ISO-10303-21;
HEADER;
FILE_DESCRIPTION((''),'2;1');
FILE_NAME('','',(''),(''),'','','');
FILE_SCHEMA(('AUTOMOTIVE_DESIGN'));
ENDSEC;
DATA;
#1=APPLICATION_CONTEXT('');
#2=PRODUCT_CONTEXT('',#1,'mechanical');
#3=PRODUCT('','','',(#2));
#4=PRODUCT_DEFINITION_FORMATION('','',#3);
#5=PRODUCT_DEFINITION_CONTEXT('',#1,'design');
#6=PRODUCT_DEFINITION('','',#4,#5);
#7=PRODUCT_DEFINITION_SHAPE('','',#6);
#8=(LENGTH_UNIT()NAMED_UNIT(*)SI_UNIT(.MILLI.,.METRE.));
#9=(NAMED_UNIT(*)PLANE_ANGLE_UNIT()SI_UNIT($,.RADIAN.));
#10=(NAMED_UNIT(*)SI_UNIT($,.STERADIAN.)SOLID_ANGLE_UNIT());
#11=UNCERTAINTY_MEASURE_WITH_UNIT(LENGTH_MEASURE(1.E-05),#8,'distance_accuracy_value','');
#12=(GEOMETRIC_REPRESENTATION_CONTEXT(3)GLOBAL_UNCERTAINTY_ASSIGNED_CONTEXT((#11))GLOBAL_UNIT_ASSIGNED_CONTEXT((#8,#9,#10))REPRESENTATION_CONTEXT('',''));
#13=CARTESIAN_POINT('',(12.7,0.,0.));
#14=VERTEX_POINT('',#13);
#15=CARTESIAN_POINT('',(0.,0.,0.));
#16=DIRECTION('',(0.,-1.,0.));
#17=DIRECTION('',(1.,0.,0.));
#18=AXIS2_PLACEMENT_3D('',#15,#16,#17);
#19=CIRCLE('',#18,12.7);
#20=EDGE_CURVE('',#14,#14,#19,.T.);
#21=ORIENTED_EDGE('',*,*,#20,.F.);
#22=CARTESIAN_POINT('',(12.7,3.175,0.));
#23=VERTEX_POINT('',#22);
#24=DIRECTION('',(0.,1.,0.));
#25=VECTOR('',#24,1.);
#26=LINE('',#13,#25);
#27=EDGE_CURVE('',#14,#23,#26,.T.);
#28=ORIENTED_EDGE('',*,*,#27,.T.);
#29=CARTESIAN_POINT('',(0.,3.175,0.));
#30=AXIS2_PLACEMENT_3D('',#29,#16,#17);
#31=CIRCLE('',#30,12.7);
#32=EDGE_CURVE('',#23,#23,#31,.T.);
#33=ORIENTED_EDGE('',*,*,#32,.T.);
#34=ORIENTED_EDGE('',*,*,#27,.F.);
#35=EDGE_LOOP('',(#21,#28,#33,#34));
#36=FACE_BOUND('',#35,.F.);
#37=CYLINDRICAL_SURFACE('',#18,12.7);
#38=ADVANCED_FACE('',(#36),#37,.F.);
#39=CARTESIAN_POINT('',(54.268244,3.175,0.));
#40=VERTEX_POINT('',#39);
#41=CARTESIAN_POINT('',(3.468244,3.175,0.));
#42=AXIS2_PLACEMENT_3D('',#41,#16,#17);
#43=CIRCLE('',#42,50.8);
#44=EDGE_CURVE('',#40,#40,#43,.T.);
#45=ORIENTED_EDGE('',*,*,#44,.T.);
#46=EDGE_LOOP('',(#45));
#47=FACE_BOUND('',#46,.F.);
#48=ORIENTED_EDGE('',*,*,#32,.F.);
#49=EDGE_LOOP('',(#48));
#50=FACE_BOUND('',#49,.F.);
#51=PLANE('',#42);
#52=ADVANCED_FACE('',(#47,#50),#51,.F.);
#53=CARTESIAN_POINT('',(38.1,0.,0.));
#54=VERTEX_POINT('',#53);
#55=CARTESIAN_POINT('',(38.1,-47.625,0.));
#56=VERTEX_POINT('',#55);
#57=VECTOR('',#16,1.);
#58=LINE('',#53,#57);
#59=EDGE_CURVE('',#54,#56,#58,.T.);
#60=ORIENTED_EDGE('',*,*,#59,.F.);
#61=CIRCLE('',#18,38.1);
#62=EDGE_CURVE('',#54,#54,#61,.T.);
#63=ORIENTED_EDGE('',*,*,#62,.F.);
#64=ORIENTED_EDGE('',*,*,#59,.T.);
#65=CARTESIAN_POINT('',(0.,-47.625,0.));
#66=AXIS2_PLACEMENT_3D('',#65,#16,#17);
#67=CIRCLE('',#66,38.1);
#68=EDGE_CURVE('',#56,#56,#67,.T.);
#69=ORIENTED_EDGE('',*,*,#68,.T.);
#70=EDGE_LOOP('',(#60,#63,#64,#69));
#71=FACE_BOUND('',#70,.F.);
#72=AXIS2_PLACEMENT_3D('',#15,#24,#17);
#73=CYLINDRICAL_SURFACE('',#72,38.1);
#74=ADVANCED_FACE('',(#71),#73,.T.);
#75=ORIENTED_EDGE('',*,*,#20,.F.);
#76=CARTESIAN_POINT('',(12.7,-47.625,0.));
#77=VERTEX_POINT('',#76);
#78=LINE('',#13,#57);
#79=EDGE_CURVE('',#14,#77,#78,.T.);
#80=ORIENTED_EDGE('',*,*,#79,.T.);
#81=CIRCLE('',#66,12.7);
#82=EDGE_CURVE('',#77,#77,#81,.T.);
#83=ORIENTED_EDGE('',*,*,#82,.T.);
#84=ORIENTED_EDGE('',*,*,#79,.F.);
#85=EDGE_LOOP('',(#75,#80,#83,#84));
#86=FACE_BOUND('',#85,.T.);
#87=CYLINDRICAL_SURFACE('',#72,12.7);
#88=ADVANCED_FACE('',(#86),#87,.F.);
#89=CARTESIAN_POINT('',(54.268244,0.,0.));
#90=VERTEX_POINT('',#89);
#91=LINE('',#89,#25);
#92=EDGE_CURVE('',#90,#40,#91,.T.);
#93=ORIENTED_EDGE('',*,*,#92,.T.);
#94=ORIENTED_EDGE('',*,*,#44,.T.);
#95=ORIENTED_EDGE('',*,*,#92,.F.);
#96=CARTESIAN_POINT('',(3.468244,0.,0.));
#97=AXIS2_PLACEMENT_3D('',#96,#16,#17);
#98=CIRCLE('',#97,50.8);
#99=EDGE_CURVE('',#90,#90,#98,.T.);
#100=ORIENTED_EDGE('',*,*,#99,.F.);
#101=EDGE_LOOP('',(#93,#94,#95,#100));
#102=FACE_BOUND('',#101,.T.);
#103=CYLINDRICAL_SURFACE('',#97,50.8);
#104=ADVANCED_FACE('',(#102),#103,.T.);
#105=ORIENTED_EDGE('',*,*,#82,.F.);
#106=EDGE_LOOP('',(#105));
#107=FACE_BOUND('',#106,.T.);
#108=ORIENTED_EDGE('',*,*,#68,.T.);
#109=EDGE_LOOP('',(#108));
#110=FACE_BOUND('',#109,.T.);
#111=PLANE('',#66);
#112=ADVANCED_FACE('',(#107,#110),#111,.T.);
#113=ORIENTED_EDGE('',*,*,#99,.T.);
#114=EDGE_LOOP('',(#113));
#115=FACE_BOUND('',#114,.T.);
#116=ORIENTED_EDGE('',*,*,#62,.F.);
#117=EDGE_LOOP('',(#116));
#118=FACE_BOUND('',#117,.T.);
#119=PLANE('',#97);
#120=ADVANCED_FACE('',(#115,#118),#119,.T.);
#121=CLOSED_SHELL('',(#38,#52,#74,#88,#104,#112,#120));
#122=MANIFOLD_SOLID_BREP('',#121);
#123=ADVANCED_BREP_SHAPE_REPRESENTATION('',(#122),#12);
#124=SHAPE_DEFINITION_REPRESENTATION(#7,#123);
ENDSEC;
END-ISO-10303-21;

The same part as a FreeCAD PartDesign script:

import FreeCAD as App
import Part
import Sketcher
Q = App.Units.Quantity

doc = App.newDocument("Part")
body = doc.addObject("PartDesign::Body", "Body")

sketch1 = doc.addObject("Sketcher::SketchObject", "Sketch")
body.addObject(sketch1)
sketch1.AttachmentSupport = (doc.XZ_Plane, [""])
sketch1.MapMode = "FlatFace"
sketch1.addGeometry(Part.Circle(App.Vector(0, 0, 0), App.Vector(0, 0, 1), 38), False)
sketch1.addConstraint([
    Sketcher.Constraint("Coincident", 0, 3, -1, 1),
    Sketcher.Constraint("Diameter", 0, Q("3 in")),
])
pad1 = doc.addObject("PartDesign::Pad", "Pad")
body.addObject(pad1)
pad1.Profile = sketch1
pad1.Length = Q("1.875 in")

sketch2 = doc.addObject("Sketcher::SketchObject", "Sketch001")
body.addObject(sketch2)
sketch2.AttachmentSupport = (doc.XZ_Plane, [""])
sketch2.MapMode = "FlatFace"
sketch2.addGeometry(Part.Circle(App.Vector(3, 0, 0), App.Vector(0, 0, 1), 51), False)
sketch2.addConstraint([
    Sketcher.Constraint("PointOnObject", 0, 3, -1),
    Sketcher.Constraint("Diameter", 0, Q("4 in")),
    Sketcher.Constraint("DistanceX", -1, 1, 0, 3, Q("3.468244 mm")),
])
pad2 = doc.addObject("PartDesign::Pad", "Pad001")
body.addObject(pad2)
pad2.Profile = sketch2
pad2.Length = Q("0.125 in")
pad2.Reversed = True

sketch3 = doc.addObject("Sketcher::SketchObject", "Sketch002")
body.addObject(sketch3)
sketch3.AttachmentSupport = (doc.XZ_Plane, [""])
sketch3.MapMode = "FlatFace"
sketch3.addGeometry(Part.Circle(App.Vector(0, 0, 0), App.Vector(0, 0, 1), 13), False)
sketch3.addConstraint([
    Sketcher.Constraint("Coincident", 0, 3, -1, 1),
    Sketcher.Constraint("Diameter", 0, Q("1 in")),
])
pocket1 = doc.addObject("PartDesign::Pocket", "Pocket")
body.addObject(pocket1)
pocket1.Profile = sketch3
pocket1.Type = "ThroughAll"
pocket1.Reversed = True

sketch4 = doc.addObject("Sketcher::SketchObject", "Sketch003")
body.addObject(sketch4)
sketch4.AttachmentSupport = (doc.XZ_Plane, [""])
sketch4.MapMode = "FlatFace"
sketch4.addGeometry(Part.Circle(App.Vector(0, 0, 0), App.Vector(0, 0, 1), 13), False)
sketch4.addConstraint([
    Sketcher.Constraint("Coincident", 0, 3, -1, 1),
    Sketcher.Constraint("Diameter", 0, Q("1 in")),
])
pocket2 = doc.addObject("PartDesign::Pocket", "Pocket001")
body.addObject(pocket2)
pocket2.Profile = sketch4
pocket2.Type = "ThroughAll"

doc.recompute()
